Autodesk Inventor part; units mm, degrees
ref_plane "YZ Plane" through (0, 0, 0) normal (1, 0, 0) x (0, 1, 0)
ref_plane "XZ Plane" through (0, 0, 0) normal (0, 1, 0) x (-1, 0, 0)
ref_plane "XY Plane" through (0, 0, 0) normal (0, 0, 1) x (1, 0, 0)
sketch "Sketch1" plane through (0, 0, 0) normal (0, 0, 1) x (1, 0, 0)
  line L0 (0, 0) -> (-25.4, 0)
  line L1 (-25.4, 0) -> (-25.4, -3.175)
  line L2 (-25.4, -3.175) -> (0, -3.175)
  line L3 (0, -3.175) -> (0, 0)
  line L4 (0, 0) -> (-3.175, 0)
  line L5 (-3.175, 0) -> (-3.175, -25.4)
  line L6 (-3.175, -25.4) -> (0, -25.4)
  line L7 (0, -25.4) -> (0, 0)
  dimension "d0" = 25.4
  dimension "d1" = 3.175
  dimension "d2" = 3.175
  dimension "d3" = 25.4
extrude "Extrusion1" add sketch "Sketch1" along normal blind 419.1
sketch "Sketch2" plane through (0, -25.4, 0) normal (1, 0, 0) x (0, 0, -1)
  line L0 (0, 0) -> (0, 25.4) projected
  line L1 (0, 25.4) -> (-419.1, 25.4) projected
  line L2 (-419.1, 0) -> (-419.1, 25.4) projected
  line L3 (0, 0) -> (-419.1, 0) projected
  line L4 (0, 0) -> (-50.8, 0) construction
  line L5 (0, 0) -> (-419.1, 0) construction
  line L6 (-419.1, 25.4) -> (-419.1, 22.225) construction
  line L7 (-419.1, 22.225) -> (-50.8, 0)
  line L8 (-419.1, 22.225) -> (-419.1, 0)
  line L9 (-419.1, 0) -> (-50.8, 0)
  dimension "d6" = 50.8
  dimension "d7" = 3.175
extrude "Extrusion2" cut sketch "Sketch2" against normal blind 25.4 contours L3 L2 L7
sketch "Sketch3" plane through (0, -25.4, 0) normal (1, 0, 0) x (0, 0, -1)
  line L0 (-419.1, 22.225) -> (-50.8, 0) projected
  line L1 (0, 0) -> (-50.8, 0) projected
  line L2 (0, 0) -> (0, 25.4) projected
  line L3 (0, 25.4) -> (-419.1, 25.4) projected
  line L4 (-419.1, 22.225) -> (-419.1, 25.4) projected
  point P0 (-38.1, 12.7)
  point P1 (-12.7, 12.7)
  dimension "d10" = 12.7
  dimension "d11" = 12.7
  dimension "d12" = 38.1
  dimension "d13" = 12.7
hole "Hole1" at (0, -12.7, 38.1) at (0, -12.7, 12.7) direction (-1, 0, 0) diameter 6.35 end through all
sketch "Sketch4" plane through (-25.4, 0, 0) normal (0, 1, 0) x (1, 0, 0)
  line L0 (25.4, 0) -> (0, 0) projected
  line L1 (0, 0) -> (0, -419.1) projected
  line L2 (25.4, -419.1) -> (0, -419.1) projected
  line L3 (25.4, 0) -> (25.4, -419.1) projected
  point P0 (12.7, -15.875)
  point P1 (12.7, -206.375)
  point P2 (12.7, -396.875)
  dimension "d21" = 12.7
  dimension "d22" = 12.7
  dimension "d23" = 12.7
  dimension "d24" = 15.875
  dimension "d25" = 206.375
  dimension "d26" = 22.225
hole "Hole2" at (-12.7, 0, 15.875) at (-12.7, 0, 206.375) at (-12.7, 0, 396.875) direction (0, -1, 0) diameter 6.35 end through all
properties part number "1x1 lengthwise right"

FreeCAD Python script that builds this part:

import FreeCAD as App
import Part
import Sketcher
Q = App.Units.Quantity

doc = App.newDocument("Part")
body = doc.addObject("PartDesign::Body", "Body")

sketch1 = body.newObject("Sketcher::SketchObject", "Sketch")
sketch1.AttachmentSupport = (doc.getObject("XY_Plane"), [""])
sketch1.MapMode = "FlatFace"
sketch1.addGeometry(Part.LineSegment(App.Vector(0, 0, 0), App.Vector(-25.4, 0, 0)), False)
sketch1.addGeometry(Part.LineSegment(App.Vector(-25.4, 0, 0), App.Vector(-25.4, -3.2, 0)), False)
sketch1.addGeometry(Part.LineSegment(App.Vector(-25.4, -3.2, 0), App.Vector(-3.2, -3.2, 0)), False)
sketch1.addGeometry(Part.LineSegment(App.Vector(-3.2, -3.2, 0), App.Vector(-3.2, -25.4, 0)), False)
sketch1.addGeometry(Part.LineSegment(App.Vector(-3.2, -25.4, 0), App.Vector(0, -25.4, 0)), False)
sketch1.addGeometry(Part.LineSegment(App.Vector(0, -25.4, 0), App.Vector(0, 0, 0)), False)
sketch1.addConstraint(Sketcher.Constraint("Coincident", 0, 2, 1, 1))
sketch1.addConstraint(Sketcher.Constraint("Coincident", 1, 2, 2, 1))
sketch1.addConstraint(Sketcher.Constraint("Coincident", 2, 2, 3, 1))
sketch1.addConstraint(Sketcher.Constraint("Coincident", 3, 2, 4, 1))
sketch1.addConstraint(Sketcher.Constraint("Coincident", 4, 2, 5, 1))
sketch1.addConstraint(Sketcher.Constraint("Coincident", 5, 2, 0, 1))
sketch1.addConstraint(Sketcher.Constraint("Horizontal", 0))
sketch1.addConstraint(Sketcher.Constraint("Vertical", 1))
sketch1.addConstraint(Sketcher.Constraint("Horizontal", 2))
sketch1.addConstraint(Sketcher.Constraint("Vertical", 3))
sketch1.addConstraint(Sketcher.Constraint("Horizontal", 4))
sketch1.addConstraint(Sketcher.Constraint("Vertical", 5))
sketch1.addConstraint(Sketcher.Constraint("Coincident", 5, 2, -1, 1))
sketch1.addConstraint(Sketcher.Constraint("Equal", 4, 1))
sketch1.addConstraint(Sketcher.Constraint("Equal", 2, 3))
sketch1.addConstraint(Sketcher.Constraint("DistanceX", 0, 2, 0, 1, Q("1 in")))
sketch1.addConstraint(Sketcher.Constraint("DistanceX", 4, 1, 4, 2, Q("0.125 in")))
pad1 = body.newObject("PartDesign::Pad", "Pad")
pad1.Profile = sketch1
pad1.Length = Q("16.5 in")

sketch2 = body.newObject("Sketcher::SketchObject", "Sketch001")
sketch2.AttachmentSupport = (doc.getObject("YZ_Plane"), [""])
sketch2.MapMode = "FlatFace"
sketch2.addGeometry(Part.LineSegment(App.Vector(-25, 419, 0), App.Vector(-25, 51, 0)), False)
sketch2.addGeometry(Part.LineSegment(App.Vector(-25, 51, 0), App.Vector(-3, 419, 0)), False)
sketch2.addGeometry(Part.LineSegment(App.Vector(-3, 419, 0), App.Vector(-25, 419, 0)), False)
sketch2.addConstraint(Sketcher.Constraint("Coincident", 0, 2, 1, 1))
sketch2.addConstraint(Sketcher.Constraint("Coincident", 1, 2, 2, 1))
sketch2.addConstraint(Sketcher.Constraint("Coincident", 2, 2, 0, 1))
sketch2.addConstraint(Sketcher.Constraint("Vertical", 0))
sketch2.addConstraint(Sketcher.Constraint("Horizontal", 2))
sketch2.addConstraint(Sketcher.Constraint("DistanceY", -1, 1, 0, 2, Q("2 in")))
sketch2.addConstraint(Sketcher.Constraint("DistanceY", 0, 2, 0, 1, Q("14.5 in")))
sketch2.addConstraint(Sketcher.Constraint("DistanceX", 1, 2, -1, 1, Q("0.125 in")))
sketch2.addConstraint(Sketcher.Constraint("DistanceX", 0, 2, -1, 1, Q("1 in")))
pocket1 = body.newObject("PartDesign::Pocket", "Pocket")
pocket1.Profile = sketch2
pocket1.Length = Q("1 in")

sketch3 = body.newObject("Sketcher::SketchObject", "Sketch002")
sketch3.AttachmentSupport = (doc.getObject("YZ_Plane"), [""])
sketch3.MapMode = "FlatFace"
sketch3.addGeometry(Part.Circle(App.Vector(-12.7, 38.1, 0), App.Vector(0, 0, 1), 3.2), False)
sketch3.addGeometry(Part.Circle(App.Vector(-12.7, 12.7, 0), App.Vector(0, 0, 1), 3.2), False)
sketch3.addConstraint(Sketcher.Constraint("Equal", 0, 1))
sketch3.addConstraint(Sketcher.Constraint("Vertical", 0, 3, 1, 3))
sketch3.addConstraint(Sketcher.Constraint("Diameter", 0, Q("0.25 in")))
sketch3.addConstraint(Sketcher.Constraint("DistanceY", 1, 3, 0, 3, Q("1 in")))
sketch3.addConstraint(Sketcher.Constraint("DistanceX", 0, 3, -1, 1, Q("0.5 in")))
sketch3.addConstraint(Sketcher.Constraint("DistanceY", -1, 1, 0, 3, Q("1.5 in")))
doc.recompute()
hole = body.newObject("PartDesign::Hole", "Hole")
hole.Profile = sketch3
hole.ThreadType = "None"
hole.Diameter = Q("0.25 in")
hole.DepthType = "ThroughAll"

sketch4 = body.newObject("Sketcher::SketchObject", "Sketch003")
sketch4.AttachmentSupport = (doc.getObject("XZ_Plane"), [""])
sketch4.MapMode = "FlatFace"
sketch4.addGeometry(Part.Circle(App.Vector(-12.7, 15.9, 0), App.Vector(0, 0, 1), 3.2), False)
sketch4.addGeometry(Part.Circle(App.Vector(-12.7, 206.4, 0), App.Vector(0, 0, 1), 3.2), False)
sketch4.addGeometry(Part.Circle(App.Vector(-12.7, 396.9, 0), App.Vector(0, 0, 1), 3.2), False)
sketch4.addConstraint(Sketcher.Constraint("Equal", 0, 1))
sketch4.addConstraint(Sketcher.Constraint("Equal", 1, 2))
sketch4.addConstraint(Sketcher.Constraint("Vertical", 0, 3, 1, 3))
sketch4.addConstraint(Sketcher.Constraint("Vertical", 1, 3, 2, 3))
sketch4.addConstraint(Sketcher.Constraint("Diameter", 0, Q("0.25 in")))
sketch4.addConstraint(Sketcher.Constraint("DistanceY", 0, 3, 2, 3, Q("15 in")))
sketch4.addConstraint(Sketcher.Constraint("DistanceX", 0, 3, -1, 1, Q("0.5 in")))
sketch4.addConstraint(Sketcher.Constraint("DistanceY", 0, 3, 1, 3, Q("7.5 in")))
sketch4.addConstraint(Sketcher.Constraint("DistanceY", -1, 1, 0, 3, Q("0.625 in")))
doc.recompute()
hole2 = body.newObject("PartDesign::Hole", "Hole001")
hole2.Profile = sketch4
hole2.ThreadType = "None"
hole2.Diameter = Q("0.25 in")
hole2.DepthType = "ThroughAll"
hole2.Reversed = True

doc.recompute()
